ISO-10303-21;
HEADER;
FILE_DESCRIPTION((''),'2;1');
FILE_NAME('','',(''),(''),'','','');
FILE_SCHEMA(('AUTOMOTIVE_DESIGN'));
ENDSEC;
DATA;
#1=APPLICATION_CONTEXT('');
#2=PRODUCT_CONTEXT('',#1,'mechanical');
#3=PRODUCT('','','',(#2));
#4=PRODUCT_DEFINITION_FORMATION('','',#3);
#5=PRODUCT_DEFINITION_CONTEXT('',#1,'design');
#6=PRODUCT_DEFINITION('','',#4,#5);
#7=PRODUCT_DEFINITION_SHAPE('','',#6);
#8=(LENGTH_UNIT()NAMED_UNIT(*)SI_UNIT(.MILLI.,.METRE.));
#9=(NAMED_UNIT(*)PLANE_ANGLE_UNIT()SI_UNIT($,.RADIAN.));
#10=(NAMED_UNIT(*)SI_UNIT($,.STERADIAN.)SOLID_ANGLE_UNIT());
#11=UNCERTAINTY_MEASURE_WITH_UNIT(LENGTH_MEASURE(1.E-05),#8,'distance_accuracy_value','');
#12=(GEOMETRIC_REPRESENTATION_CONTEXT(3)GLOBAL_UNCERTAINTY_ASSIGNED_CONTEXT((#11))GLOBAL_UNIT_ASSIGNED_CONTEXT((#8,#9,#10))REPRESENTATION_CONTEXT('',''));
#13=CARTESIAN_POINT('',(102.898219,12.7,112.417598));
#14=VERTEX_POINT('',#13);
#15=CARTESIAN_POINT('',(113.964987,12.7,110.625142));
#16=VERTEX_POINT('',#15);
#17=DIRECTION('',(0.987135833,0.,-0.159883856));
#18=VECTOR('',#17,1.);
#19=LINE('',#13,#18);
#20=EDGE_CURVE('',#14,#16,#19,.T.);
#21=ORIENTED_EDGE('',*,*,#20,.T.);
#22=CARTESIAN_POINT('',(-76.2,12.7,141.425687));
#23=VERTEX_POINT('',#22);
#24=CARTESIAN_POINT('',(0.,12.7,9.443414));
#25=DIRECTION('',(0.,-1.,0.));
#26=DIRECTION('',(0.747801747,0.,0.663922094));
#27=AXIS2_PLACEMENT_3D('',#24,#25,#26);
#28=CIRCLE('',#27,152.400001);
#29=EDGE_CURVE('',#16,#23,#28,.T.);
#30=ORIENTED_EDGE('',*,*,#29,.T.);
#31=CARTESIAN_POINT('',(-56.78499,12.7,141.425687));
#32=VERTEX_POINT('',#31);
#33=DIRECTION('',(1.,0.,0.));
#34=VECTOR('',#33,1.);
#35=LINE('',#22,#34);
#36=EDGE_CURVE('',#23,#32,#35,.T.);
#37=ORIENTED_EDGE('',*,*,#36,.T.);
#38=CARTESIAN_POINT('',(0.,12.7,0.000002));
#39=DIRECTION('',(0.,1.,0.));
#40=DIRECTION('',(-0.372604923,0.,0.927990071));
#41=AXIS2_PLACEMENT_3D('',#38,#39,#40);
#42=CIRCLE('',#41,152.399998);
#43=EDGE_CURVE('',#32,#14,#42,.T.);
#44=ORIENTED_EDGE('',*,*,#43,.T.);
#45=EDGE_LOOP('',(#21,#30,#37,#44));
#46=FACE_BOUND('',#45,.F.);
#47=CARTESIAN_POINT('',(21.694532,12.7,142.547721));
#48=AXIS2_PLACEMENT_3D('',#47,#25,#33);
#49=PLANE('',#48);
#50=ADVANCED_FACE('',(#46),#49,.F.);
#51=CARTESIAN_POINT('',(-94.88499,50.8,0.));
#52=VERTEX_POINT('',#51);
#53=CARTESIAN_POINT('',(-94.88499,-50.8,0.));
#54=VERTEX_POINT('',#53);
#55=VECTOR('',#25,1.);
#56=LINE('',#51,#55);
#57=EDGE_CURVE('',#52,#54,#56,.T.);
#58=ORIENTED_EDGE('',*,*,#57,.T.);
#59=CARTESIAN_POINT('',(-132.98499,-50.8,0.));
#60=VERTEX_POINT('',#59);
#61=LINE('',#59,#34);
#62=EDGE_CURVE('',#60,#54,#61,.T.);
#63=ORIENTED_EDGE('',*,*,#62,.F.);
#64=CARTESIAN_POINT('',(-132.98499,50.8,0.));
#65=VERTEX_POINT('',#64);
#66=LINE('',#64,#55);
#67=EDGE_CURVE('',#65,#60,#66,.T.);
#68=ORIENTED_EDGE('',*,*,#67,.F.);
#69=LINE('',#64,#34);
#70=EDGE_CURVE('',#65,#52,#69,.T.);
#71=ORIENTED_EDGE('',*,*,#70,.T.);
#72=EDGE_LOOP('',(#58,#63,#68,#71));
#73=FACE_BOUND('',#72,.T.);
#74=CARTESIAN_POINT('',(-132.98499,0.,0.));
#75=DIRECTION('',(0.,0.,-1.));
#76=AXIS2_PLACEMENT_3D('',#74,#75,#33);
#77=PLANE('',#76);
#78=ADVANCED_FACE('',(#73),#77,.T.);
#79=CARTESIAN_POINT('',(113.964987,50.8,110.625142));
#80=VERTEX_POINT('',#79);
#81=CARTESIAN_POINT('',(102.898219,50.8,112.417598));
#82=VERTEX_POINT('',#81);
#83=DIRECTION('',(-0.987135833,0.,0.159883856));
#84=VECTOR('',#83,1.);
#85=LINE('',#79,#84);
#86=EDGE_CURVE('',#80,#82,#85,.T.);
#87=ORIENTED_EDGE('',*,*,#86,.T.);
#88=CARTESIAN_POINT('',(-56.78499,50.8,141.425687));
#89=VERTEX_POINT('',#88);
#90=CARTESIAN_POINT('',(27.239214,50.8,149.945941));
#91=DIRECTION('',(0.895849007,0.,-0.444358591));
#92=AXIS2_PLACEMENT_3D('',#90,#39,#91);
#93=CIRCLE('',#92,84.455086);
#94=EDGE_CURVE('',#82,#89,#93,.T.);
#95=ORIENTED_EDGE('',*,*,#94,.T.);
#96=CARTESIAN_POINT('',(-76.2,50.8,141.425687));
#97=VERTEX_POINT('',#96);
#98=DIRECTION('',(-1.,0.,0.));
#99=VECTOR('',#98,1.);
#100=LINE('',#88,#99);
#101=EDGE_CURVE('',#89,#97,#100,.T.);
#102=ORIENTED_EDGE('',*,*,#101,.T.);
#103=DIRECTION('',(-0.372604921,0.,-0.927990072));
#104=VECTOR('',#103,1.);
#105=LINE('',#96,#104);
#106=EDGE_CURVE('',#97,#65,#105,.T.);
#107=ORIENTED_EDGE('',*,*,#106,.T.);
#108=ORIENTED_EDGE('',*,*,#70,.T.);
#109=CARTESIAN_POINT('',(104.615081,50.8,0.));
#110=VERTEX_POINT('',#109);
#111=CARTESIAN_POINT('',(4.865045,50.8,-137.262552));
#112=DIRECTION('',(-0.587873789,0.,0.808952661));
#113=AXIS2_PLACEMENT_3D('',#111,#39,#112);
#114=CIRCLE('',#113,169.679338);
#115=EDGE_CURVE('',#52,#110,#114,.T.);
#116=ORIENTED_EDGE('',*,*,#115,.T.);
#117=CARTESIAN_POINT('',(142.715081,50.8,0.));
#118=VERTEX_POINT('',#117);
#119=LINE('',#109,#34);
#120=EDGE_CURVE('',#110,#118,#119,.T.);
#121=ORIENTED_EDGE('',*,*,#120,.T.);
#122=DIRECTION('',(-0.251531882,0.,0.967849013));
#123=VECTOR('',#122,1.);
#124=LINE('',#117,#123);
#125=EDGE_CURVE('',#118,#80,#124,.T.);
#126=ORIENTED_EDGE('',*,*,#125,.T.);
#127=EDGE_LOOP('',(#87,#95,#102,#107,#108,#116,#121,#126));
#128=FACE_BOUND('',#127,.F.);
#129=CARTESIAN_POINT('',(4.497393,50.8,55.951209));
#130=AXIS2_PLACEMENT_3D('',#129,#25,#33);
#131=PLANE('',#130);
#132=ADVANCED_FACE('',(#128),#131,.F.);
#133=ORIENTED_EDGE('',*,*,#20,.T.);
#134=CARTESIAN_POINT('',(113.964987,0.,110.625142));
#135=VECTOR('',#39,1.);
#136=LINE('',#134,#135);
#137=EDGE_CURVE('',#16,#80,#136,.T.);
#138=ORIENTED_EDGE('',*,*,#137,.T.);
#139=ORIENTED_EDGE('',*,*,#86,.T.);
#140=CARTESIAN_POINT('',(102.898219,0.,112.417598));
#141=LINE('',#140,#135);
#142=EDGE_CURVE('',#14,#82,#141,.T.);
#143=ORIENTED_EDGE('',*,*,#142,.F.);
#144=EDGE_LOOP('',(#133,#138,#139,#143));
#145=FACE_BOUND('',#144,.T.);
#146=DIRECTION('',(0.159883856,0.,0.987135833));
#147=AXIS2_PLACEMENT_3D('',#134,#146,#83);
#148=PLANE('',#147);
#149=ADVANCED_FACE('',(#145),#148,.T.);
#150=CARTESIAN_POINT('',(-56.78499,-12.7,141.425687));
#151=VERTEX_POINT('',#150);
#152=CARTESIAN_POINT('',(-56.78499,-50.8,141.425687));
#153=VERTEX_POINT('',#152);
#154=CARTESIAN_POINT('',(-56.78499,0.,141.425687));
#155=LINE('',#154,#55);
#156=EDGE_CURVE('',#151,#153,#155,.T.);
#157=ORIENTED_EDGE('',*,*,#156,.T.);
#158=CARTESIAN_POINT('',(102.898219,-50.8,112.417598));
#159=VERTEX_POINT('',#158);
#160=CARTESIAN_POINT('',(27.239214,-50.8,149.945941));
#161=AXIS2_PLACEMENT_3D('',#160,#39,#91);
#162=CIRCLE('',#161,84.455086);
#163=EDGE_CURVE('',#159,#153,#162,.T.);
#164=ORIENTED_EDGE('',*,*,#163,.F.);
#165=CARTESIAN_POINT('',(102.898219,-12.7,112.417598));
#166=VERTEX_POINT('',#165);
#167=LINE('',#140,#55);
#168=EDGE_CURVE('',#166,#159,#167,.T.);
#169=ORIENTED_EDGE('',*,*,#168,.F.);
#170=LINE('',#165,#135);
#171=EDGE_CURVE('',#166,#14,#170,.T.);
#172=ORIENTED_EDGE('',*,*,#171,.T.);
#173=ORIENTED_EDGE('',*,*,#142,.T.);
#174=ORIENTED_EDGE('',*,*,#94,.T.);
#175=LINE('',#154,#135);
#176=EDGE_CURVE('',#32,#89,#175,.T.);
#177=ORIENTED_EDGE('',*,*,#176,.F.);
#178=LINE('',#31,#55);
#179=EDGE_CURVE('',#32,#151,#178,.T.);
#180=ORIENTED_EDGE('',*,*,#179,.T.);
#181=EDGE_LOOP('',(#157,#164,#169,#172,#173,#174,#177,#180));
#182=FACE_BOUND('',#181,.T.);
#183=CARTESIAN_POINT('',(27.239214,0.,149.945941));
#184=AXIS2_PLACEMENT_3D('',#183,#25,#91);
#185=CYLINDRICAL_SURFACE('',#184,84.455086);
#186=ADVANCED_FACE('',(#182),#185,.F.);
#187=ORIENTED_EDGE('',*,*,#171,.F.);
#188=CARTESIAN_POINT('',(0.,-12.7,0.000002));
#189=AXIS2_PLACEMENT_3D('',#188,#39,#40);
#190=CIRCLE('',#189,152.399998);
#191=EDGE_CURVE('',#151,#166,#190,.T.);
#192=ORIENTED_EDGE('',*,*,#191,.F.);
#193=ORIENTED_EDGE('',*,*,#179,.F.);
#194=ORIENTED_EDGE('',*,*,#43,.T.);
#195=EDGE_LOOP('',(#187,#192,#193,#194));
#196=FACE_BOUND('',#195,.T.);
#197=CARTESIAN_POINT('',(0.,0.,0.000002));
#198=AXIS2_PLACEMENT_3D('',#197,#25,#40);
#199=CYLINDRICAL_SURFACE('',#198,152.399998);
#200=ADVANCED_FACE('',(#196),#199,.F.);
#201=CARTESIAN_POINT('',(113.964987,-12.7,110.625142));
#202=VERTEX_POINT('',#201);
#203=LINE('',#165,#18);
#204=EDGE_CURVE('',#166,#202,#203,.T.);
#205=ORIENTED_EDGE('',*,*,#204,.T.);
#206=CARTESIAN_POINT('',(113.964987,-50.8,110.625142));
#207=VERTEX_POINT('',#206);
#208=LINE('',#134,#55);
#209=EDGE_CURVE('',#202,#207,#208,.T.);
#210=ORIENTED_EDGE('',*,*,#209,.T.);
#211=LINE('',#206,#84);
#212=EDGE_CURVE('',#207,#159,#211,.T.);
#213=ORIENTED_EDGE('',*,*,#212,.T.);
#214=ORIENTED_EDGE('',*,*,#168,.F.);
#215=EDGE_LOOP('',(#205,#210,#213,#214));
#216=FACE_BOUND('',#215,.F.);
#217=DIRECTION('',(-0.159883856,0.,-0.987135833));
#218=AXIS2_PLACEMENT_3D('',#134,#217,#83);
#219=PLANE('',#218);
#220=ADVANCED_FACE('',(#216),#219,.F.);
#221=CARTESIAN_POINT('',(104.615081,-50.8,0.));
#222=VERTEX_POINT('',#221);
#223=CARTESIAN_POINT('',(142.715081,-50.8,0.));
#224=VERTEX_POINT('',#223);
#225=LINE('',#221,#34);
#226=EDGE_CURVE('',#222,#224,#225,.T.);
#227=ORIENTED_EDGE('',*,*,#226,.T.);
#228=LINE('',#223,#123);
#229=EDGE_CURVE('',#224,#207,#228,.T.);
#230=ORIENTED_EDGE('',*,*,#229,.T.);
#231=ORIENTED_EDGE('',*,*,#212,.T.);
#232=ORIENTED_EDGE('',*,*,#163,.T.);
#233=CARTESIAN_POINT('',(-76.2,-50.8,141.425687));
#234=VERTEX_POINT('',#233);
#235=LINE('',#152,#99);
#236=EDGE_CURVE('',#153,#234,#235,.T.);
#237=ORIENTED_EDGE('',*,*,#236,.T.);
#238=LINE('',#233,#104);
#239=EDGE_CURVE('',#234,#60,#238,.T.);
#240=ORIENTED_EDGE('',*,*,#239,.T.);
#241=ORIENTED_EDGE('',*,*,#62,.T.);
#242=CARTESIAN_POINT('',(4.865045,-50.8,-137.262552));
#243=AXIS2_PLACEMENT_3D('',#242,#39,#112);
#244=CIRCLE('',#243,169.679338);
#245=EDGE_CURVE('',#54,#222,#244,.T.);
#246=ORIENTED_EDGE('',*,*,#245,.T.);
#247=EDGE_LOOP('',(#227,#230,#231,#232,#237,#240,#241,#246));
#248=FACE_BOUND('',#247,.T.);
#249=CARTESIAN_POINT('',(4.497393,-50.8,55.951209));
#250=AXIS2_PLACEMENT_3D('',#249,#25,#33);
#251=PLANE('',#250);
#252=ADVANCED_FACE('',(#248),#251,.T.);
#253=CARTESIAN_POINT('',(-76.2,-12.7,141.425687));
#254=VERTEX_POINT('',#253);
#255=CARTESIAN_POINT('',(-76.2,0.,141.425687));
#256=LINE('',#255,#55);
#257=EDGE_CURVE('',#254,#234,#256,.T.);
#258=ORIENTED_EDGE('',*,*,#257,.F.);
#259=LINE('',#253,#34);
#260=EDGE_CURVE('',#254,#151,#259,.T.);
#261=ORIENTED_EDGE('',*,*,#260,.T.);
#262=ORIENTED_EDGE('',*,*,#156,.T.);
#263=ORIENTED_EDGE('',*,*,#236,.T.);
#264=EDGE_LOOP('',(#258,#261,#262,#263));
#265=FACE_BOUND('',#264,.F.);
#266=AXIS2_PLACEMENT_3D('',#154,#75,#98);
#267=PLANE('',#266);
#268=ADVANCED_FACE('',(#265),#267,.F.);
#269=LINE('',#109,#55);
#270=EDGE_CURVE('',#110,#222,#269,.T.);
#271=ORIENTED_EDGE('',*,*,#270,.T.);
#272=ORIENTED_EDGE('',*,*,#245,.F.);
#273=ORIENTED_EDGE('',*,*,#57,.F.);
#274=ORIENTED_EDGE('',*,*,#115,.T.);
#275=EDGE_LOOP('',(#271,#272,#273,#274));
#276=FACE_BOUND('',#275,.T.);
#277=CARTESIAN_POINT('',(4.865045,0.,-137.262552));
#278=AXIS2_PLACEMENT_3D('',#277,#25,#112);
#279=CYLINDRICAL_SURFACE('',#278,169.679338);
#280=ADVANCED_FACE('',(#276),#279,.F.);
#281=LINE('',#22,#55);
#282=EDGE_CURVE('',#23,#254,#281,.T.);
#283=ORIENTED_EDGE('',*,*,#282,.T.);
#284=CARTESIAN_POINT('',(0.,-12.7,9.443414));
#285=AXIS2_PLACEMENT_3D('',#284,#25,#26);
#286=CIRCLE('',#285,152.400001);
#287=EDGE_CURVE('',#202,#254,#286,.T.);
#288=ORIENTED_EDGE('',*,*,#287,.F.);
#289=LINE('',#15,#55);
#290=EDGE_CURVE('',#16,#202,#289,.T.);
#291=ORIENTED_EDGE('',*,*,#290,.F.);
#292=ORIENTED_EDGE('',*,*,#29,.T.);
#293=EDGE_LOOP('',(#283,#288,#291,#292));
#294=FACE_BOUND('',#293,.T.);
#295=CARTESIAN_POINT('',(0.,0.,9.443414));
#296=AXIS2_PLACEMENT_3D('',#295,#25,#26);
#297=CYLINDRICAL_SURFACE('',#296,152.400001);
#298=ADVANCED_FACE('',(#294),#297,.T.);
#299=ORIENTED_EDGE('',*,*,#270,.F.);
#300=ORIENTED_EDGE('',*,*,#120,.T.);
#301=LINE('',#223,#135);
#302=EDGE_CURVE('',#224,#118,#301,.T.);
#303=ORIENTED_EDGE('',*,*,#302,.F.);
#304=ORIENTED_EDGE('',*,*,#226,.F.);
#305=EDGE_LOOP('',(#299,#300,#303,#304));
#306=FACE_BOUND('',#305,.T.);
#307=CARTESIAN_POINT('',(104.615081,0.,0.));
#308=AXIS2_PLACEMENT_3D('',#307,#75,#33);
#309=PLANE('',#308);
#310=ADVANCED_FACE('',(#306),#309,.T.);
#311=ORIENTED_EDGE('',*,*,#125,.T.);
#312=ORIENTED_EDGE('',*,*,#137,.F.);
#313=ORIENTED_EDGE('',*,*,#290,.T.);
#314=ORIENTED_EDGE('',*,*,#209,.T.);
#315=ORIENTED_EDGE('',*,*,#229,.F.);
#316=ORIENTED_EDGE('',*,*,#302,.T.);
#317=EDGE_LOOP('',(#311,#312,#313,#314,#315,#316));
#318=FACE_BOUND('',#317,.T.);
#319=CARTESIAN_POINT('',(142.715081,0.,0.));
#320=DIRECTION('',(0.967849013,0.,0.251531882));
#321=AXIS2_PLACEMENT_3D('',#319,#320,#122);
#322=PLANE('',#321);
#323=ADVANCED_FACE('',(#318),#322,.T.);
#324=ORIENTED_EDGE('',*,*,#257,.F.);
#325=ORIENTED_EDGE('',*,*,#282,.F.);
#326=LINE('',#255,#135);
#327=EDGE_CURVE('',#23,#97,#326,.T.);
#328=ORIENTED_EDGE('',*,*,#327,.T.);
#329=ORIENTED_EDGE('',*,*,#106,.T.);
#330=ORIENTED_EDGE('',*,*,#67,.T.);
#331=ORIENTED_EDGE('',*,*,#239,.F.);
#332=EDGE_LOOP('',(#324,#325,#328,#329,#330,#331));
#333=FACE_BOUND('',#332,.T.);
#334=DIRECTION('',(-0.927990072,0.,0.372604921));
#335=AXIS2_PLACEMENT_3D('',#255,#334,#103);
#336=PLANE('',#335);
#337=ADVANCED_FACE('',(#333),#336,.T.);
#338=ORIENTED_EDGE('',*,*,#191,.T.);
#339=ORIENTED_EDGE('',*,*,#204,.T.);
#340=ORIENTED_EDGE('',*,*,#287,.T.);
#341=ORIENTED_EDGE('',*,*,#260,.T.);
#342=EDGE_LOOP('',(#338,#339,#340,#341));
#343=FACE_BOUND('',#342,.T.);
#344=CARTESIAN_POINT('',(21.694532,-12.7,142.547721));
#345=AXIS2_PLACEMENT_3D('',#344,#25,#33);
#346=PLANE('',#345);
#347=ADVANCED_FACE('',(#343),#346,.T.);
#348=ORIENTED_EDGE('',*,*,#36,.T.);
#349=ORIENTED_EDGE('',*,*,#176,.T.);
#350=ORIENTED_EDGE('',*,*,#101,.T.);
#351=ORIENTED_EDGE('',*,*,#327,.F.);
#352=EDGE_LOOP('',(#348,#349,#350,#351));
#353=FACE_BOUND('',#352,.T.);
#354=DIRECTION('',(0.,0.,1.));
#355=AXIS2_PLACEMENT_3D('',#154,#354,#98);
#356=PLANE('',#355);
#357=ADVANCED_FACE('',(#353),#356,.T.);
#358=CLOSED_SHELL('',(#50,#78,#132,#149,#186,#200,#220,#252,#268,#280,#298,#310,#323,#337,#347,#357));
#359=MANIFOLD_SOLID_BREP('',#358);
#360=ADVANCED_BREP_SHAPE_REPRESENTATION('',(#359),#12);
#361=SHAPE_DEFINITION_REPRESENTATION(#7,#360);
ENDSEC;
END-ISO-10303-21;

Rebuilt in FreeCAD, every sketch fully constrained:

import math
import FreeCAD as App
import Part
import Sketcher
from FreeCAD import Vector
Q = App.Units.Quantity

doc = App.newDocument("Part")
body = doc.addObject("PartDesign::Body", "Body")

# Sketch on XZ plane
sketch1 = body.newObject("Sketcher::SketchObject", "Sketch")
sketch1.AttachmentSupport = (doc.getObject("XZ_Plane"), [""])
sketch1.MapMode = "FlatFace"
sketch1.addGeometry([
    Part.ArcOfCircle(Part.Circle(Vector(0, 9.443414, 0), Vector(0, 0, 1), 152.400001), math.radians(41.599684), math.radians(120)),
    Part.LineSegment(Vector(-76.2, 141.425687, 0), Vector(-56.78499, 141.425687, 0)),
    Part.ArcOfCircle(Part.Circle(Vector(0, 0.000002, 0), Vector(0, 0, 1), 152.399998), math.radians(47.531468), math.radians(111.87636)),
    Part.LineSegment(Vector(102.898219, 112.417598, 0), Vector(113.964987, 110.625142, 0)),
], False)
sketch1.addConstraint([
    Sketcher.Constraint("Coincident", 0, 2, 1, 1),
    Sketcher.Constraint("Coincident", 1, 2, 2, 2),
    Sketcher.Constraint("Coincident", 2, 1, 3, 1),
    Sketcher.Constraint("Coincident", 3, 2, 0, 1),
    Sketcher.Constraint("Horizontal", 1),
    Sketcher.Constraint("Coincident", 2, 3, -1, 1),
    Sketcher.Constraint("PointOnObject", 0, 3, -2),
    Sketcher.Constraint("Radius", 0, Q("6 in")),
    Sketcher.Constraint("Radius", 2, Q("5.9999999 in")),
    Sketcher.Constraint("DistanceX", 0, 2, -1, 1, Q("3 in")),
    Sketcher.Constraint("DistanceX", 1, 1, 1, 2, 19.41501),
    Sketcher.Constraint("DistanceY", -1, 1, 2, 1, 112.417598),
    Sketcher.Constraint("Distance", 3, 11.210988),
])
pad1 = body.newObject("PartDesign::Pad", "Pad")
pad1.Profile = sketch1
pad1.Type = "TwoLengths"
pad1.Length = Q("0.5 in")
pad1.Length2 = Q("0.5 in")

# Sketch on XZ plane
sketch2 = body.newObject("Sketcher::SketchObject", "Sketch001")
sketch2.AttachmentSupport = (doc.getObject("XZ_Plane"), [""])
sketch2.MapMode = "FlatFace"
sketch2.addGeometry([
    Part.LineSegment(Vector(113.964987, 110.625142, 0), Vector(102.898219, 112.417598, 0)),  # 0
    Part.ArcOfCircle(Part.Circle(Vector(27.239214, 149.945941, 0), Vector(0, 0, 1), 84.455086), math.radians(-174.209863), math.radians(-26.382309)),  # 1
    Part.LineSegment(Vector(-56.78499, 141.425687, 0), Vector(-76.2, 141.425687, 0)),  # 2
    Part.LineSegment(Vector(-76.2, 141.425687, 0), Vector(-132.98499, 0, 0)),  # 3
    Part.LineSegment(Vector(-132.98499, 0, 0), Vector(-94.88499, 0, 0)),  # 4
    Part.ArcOfCircle(Part.Circle(Vector(4.865045, -137.262552, 0), Vector(0, 0, 1), 169.679338), math.radians(53.993729), math.radians(126.006271)),  # 5
    Part.LineSegment(Vector(104.615081, 0, 0), Vector(142.715081, 0, 0)),  # 6
    Part.LineSegment(Vector(142.715081, 0, 0), Vector(113.964987, 110.625142, 0)),  # 7
], False)
sketch2.addConstraint([
    Sketcher.Constraint("Coincident", 0, 2, 1, 2),
    Sketcher.Constraint("Coincident", 1, 1, 2, 1),
    Sketcher.Constraint("Coincident", 2, 2, 3, 1),
    Sketcher.Constraint("Coincident", 3, 2, 4, 1),
    Sketcher.Constraint("Coincident", 4, 2, 5, 2),
    Sketcher.Constraint("Coincident", 5, 1, 6, 1),
    Sketcher.Constraint("Coincident", 6, 2, 7, 1),
    Sketcher.Constraint("Coincident", 7, 2, 0, 1),
    Sketcher.Constraint("Horizontal", 2),
    Sketcher.Constraint("Horizontal", 4),
    Sketcher.Constraint("Horizontal", 6),
    Sketcher.Constraint("PointOnObject", 3, 2, -1),
    Sketcher.Constraint("PointOnObject", 5, 1, -1),
    Sketcher.Constraint("Equal", 4, 6),
    Sketcher.Constraint("Distance", 3, Q("6 in")),
    Sketcher.Constraint("DistanceX", 4, 1, 4, 2, Q("1.5 in")),
    Sketcher.Constraint("DistanceX", 2, 2, -1, 1, Q("3 in")),
    Sketcher.Constraint("DistanceX", 3, 2, 1, 1, Q("3 in")),
    Sketcher.Constraint("Distance", 7, Q("4.5 in")),
    Sketcher.Constraint("Radius", 5, 169.679338),
    Sketcher.Constraint("Radius", 1, 84.455086),
    Sketcher.Constraint("DistanceX", 2, 2, 2, 1, 19.41501),
    Sketcher.Constraint("DistanceY", -1, 1, 0, 2, 112.417598),
    Sketcher.Constraint("DistanceY", 7, 2, 1, 3, 39.320799),
    Sketcher.Constraint("Distance", 0, 11.210988),
    Sketcher.Constraint("DistanceY", -1, 1, 1, 3, 149.945941),
])
pad2 = body.newObject("PartDesign::Pad", "Pad001")
pad2.Profile = sketch2
pad2.Type = "TwoLengths"
pad2.Length = Q("2 in")
pad2.Length2 = Q("2 in")

doc.recompute()
